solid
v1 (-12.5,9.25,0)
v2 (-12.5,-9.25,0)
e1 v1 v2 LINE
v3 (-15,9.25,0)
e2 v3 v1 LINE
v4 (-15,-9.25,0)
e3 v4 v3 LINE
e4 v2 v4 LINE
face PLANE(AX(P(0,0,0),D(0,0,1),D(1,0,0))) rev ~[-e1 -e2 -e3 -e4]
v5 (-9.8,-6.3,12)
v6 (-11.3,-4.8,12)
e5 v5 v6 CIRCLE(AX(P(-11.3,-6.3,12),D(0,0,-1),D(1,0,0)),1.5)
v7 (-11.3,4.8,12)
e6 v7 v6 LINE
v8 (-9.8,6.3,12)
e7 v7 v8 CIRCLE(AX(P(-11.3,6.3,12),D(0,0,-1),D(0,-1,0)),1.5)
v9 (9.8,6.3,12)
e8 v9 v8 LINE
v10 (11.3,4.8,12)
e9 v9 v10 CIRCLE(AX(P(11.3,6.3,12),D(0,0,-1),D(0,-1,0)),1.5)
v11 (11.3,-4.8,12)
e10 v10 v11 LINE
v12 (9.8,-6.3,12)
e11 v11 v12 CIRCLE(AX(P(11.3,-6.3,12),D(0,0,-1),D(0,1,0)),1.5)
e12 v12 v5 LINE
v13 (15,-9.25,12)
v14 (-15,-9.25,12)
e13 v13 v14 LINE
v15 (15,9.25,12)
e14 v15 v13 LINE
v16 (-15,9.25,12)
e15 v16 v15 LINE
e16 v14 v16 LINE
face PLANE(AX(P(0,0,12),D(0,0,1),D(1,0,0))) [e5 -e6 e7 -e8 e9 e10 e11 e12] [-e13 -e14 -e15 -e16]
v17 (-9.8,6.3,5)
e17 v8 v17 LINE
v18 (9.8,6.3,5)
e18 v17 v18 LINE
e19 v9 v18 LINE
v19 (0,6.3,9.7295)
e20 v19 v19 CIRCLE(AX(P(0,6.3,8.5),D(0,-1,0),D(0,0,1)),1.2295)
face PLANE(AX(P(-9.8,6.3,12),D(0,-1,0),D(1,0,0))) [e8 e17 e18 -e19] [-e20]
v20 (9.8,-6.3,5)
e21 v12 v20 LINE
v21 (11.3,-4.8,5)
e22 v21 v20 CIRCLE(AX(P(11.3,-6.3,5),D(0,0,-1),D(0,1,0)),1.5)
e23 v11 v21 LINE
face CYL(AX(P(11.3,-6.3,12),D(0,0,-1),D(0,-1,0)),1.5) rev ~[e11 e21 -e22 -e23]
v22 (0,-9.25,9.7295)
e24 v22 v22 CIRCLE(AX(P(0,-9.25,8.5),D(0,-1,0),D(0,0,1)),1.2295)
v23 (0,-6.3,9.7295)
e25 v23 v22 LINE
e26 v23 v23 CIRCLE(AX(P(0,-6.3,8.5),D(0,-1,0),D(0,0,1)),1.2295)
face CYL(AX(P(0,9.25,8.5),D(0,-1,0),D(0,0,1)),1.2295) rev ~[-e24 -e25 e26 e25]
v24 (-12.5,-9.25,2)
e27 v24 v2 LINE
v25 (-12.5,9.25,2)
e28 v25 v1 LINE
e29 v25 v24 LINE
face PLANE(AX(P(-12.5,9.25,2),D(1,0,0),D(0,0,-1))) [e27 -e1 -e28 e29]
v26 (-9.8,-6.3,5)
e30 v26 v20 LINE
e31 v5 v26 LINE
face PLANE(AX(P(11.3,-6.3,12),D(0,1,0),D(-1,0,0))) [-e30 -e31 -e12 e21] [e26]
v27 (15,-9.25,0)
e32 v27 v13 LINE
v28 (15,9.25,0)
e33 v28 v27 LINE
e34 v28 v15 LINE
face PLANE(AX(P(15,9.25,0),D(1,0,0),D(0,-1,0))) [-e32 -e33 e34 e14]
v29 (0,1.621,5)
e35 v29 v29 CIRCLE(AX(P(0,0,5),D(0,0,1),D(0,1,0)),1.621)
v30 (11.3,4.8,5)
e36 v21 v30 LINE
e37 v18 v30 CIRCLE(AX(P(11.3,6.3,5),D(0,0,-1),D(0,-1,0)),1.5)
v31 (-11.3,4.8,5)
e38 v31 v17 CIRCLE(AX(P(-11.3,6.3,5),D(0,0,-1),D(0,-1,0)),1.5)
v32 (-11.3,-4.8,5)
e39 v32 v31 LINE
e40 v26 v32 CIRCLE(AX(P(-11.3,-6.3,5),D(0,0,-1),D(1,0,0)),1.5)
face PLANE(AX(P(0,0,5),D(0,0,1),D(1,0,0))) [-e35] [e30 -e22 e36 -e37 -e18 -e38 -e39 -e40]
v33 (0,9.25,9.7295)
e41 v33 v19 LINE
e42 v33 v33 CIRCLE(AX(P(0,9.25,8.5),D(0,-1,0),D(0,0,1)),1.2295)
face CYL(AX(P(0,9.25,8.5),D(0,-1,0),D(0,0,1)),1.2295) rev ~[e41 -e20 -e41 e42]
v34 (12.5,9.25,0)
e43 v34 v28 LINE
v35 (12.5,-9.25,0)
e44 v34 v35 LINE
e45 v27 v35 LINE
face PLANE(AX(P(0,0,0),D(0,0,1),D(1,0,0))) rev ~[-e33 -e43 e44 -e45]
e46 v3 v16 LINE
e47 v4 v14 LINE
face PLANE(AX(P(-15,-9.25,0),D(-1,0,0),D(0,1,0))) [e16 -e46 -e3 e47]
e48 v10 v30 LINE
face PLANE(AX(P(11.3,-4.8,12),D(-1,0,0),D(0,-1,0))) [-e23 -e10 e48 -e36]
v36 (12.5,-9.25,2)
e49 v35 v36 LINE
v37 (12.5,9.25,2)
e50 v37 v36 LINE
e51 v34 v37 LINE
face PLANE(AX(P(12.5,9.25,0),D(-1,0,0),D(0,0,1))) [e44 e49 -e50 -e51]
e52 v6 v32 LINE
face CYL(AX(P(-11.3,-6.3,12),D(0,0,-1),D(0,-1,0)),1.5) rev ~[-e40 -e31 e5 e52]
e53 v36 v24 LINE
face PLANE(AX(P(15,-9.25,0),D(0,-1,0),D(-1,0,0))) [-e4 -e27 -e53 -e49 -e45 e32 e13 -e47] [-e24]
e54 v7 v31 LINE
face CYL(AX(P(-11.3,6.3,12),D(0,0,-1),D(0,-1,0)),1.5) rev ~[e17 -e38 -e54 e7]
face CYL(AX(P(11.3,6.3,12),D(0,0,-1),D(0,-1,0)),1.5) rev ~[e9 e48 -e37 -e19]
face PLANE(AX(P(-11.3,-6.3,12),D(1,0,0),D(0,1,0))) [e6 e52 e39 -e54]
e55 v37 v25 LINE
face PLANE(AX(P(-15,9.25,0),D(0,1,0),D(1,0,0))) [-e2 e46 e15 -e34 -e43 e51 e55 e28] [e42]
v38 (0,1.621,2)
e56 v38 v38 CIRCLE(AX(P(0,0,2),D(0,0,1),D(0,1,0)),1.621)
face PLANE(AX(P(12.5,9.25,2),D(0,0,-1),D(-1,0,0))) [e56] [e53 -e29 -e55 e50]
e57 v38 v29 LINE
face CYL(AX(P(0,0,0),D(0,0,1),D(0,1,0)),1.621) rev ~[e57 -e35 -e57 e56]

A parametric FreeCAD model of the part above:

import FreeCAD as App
import Part
import Sketcher

V = App.Vector


def add_polygon(sketch, points):
    """Adds a closed chain of lines whose ends are joined by coincident constraints."""
    first, n = sketch.GeometryCount, len(points)
    for a, b in zip(points, points[1:] + points[:1]):
        sketch.addGeometry(Part.LineSegment(App.Vector(*a, 0), App.Vector(*b, 0)), False)
    for i in range(n):
        sketch.addConstraint(Sketcher.Constraint("Coincident", first + i, 2, first + (i + 1) % n, 1))

doc = App.newDocument("Part")
params = doc.addObject("Spreadsheet::Sheet", "Params")
for row, (alias, value) in enumerate([
    ("sketch1_width", "30 mm"),
    ("sketch1_height", "18.5 mm"),
    ("pad1_length", "12 mm"),
    ("hole_diameter", "3.242 mm"),
    ("sketch3_diameter", "3 mm"),
    ("hole2_diameter", "3 mm"),
    ("hole2_depth", "7 mm"),
    ("sketch4_width", "22.6 mm"),
    ("sketch4_height", "12.6 mm"),
    ("pocket1_length", "7 mm"),
    ("hole3_diameter", "2.459 mm"),
    ("sketch6_width", "25 mm"),
    ("sketch6_height", "2 mm"),
], start=1):
    params.set(f"A{row}", alias)
    params.set(f"B{row}", "=" + value)
    params.setAlias(f"B{row}", alias)

body = doc.addObject("PartDesign::Body", "Body")

# Sketch on XY plane
sketch1 = doc.addObject("Sketcher::SketchObject", "Sketch")
body.addObject(sketch1)
sketch1.AttachmentSupport = (doc.XY_Plane, [""])
sketch1.MapMode = "FlatFace"
add_polygon(sketch1, [(15, 9), (-15, 9), (-15, -9), (15, -9)])  # lines 0-3
sketch1.addConstraint([
    Sketcher.Constraint("Horizontal", 0),
    Sketcher.Constraint("Vertical", 1),
    Sketcher.Constraint("Horizontal", 2),
    Sketcher.Constraint("Vertical", 3),
    Sketcher.Constraint("Symmetric", 0, 2, 2, 2, -1, 1),
    Sketcher.Constraint("DistanceX", 0, 2, 0, 1, 30.0),
    Sketcher.Constraint("DistanceY", 1, 2, 1, 1, 18.5),
])
sketch1.setExpression("Constraints[9]", "Params.sketch1_width")
sketch1.setExpression("Constraints[10]", "Params.sketch1_height")
pad1 = doc.addObject("PartDesign::Pad", "Pad")
body.addObject(pad1)
pad1.Profile = sketch1
pad1.setExpression("Length", "Params.pad1_length")

# Sketch on XY plane
sketch2 = doc.addObject("Sketcher::SketchObject", "Sketch001")
body.addObject(sketch2)
sketch2.AttachmentSupport = (doc.XY_Plane, [""])
sketch2.MapMode = "FlatFace"
sketch2.addGeometry(Part.Circle(V(0, 0, 0), V(0, 0, 1), 1.6), False)
sketch2.addConstraint([
    Sketcher.Constraint("Coincident", 0, 3, -1, 1),
    Sketcher.Constraint("Diameter", 0, 3.242),
])
doc.recompute()
hole = doc.addObject("PartDesign::Hole", "Hole")
body.addObject(hole)
hole.Profile = sketch2
hole.ThreadType = "None"
hole.setExpression("Diameter", "Params.hole_diameter")
hole.DepthType = "ThroughAll"
hole.Reversed = True

# Sketch on XY plane
sketch3 = doc.addObject("Sketcher::SketchObject", "Sketch002")
body.addObject(sketch3)
sketch3.AttachmentSupport = (doc.XY_Plane, [""])
sketch3.MapMode = "FlatFace"
sketch3.AttachmentOffset = App.Placement(V(0, 0, 12), App.Rotation())
sketch3.addGeometry([
    Part.Circle(V(-11.3, 6.3, 0), V(0, 0, 1), 1.5),
    Part.Circle(V(11.3, 6.3, 0), V(0, 0, 1), 1.5),
    Part.Circle(V(11.3, -6.3, 0), V(0, 0, 1), 1.5),
    Part.Circle(V(-11.3, -6.3, 0), V(0, 0, 1), 1.5),
], False)
sketch3.addConstraint([
    Sketcher.Constraint("Equal", 0, 1),
    Sketcher.Constraint("Equal", 1, 2),
    Sketcher.Constraint("Equal", 2, 3),
    Sketcher.Constraint("Symmetric", 0, 3, 2, 3, -1, 1),
    Sketcher.Constraint("Symmetric", 1, 3, 3, 3, -1, 1),
    Sketcher.Constraint("Symmetric", 0, 3, 1, 3, -2),
    Sketcher.Constraint("Diameter", 0, 3.0),
    Sketcher.Constraint("DistanceX", 0, 3, -1, 1, 11.3),
    Sketcher.Constraint("DistanceY", -1, 1, 0, 3, 6.3),
])
sketch3.setExpression("Constraints[6]", "Params.sketch3_diameter")
doc.recompute()
hole2 = doc.addObject("PartDesign::Hole", "Hole001")
body.addObject(hole2)
hole2.Profile = sketch3
hole2.ThreadType = "None"
hole2.setExpression("Diameter", "Params.hole2_diameter")
hole2.DepthType = "Dimension"
hole2.setExpression("Depth", "Params.hole2_depth")
hole2.DrillPoint = "Flat"

# Sketch on XY plane
sketch4 = doc.addObject("Sketcher::SketchObject", "Sketch003")
body.addObject(sketch4)
sketch4.AttachmentSupport = (doc.XY_Plane, [""])
sketch4.MapMode = "FlatFace"
sketch4.AttachmentOffset = App.Placement(V(0, 0, 12), App.Rotation())
add_polygon(sketch4, [(11.3, -6.3), (11.3, 6.3), (-11.3, 6.3), (-11.3, -6.3)])  # lines 0-3
sketch4.addGeometry(Part.Circle(V(0, 0, 0), V(0, 0, 1), 1.6), False)  # 4
sketch4.addConstraint([
    Sketcher.Constraint("Vertical", 0),
    Sketcher.Constraint("Horizontal", 1),
    Sketcher.Constraint("Vertical", 2),
    Sketcher.Constraint("Horizontal", 3),
    Sketcher.Constraint("Coincident", 4, 3, -1, 1),
    Sketcher.Constraint("Symmetric", 0, 2, 2, 2, -1, 1),
    Sketcher.Constraint("Diameter", 4, 3.242),
    Sketcher.Constraint("DistanceX", 1, 2, 1, 1, 22.6),
    Sketcher.Constraint("DistanceY", 0, 1, 0, 2, 12.6),
])
sketch4.setExpression("Constraints[11]", "Params.sketch4_width")
sketch4.setExpression("Constraints[12]", "Params.sketch4_height")
pocket1 = doc.addObject("PartDesign::Pocket", "Pocket")
body.addObject(pocket1)
pocket1.Profile = sketch4
pocket1.setExpression("Length", "Params.pocket1_length")

# Sketch on XZ plane
sketch5 = doc.addObject("Sketcher::SketchObject", "Sketch004")
body.addObject(sketch5)
sketch5.AttachmentSupport = (doc.XZ_Plane, [""])
sketch5.MapMode = "FlatFace"
sketch5.AttachmentOffset = App.Placement(V(0, 0, -9.25), App.Rotation())
sketch5.addGeometry(Part.Circle(V(0, 8.5, 0), V(0, 0, 1), 1.2), False)
sketch5.addConstraint([
    Sketcher.Constraint("PointOnObject", 0, 3, -2),
    Sketcher.Constraint("Diameter", 0, 2.459),
    Sketcher.Constraint("DistanceY", -1, 1, 0, 3, 8.5),
])
doc.recompute()
hole3 = doc.addObject("PartDesign::Hole", "Hole002")
body.addObject(hole3)
hole3.Profile = sketch5
hole3.ThreadType = "None"
hole3.setExpression("Diameter", "Params.hole3_diameter")
hole3.DepthType = "ThroughAll"
hole3.Reversed = True

# Sketch on XZ plane
sketch6 = doc.addObject("Sketcher::SketchObject", "Sketch005")
body.addObject(sketch6)
sketch6.AttachmentSupport = (doc.XZ_Plane, [""])
sketch6.MapMode = "FlatFace"
sketch6.AttachmentOffset = App.Placement(V(0, 0, -9.25), App.Rotation())
add_polygon(sketch6, [(12.5, 0), (-12.5, 0), (-12.5, 2), (12.5, 2)])  # lines 0-3
sketch6.addConstraint([
    Sketcher.Constraint("Horizontal", 0),
    Sketcher.Constraint("Vertical", 1),
    Sketcher.Constraint("Horizontal", 2),
    Sketcher.Constraint("Vertical", 3),
    Sketcher.Constraint("Symmetric", 0, 2, 3, 2, -1, 1),
    Sketcher.Constraint("DistanceX", 0, 2, 0, 1, 25.0),
    Sketcher.Constraint("DistanceY", 1, 1, 1, 2, 2.0),
])
sketch6.setExpression("Constraints[9]", "Params.sketch6_width")
sketch6.setExpression("Constraints[10]", "Params.sketch6_height")
pocket2 = doc.addObject("PartDesign::Pocket", "Pocket001")
body.addObject(pocket2)
pocket2.Profile = sketch6
pocket2.Type = "UpToFirst"
pocket2.Reversed = True

doc.recompute()
